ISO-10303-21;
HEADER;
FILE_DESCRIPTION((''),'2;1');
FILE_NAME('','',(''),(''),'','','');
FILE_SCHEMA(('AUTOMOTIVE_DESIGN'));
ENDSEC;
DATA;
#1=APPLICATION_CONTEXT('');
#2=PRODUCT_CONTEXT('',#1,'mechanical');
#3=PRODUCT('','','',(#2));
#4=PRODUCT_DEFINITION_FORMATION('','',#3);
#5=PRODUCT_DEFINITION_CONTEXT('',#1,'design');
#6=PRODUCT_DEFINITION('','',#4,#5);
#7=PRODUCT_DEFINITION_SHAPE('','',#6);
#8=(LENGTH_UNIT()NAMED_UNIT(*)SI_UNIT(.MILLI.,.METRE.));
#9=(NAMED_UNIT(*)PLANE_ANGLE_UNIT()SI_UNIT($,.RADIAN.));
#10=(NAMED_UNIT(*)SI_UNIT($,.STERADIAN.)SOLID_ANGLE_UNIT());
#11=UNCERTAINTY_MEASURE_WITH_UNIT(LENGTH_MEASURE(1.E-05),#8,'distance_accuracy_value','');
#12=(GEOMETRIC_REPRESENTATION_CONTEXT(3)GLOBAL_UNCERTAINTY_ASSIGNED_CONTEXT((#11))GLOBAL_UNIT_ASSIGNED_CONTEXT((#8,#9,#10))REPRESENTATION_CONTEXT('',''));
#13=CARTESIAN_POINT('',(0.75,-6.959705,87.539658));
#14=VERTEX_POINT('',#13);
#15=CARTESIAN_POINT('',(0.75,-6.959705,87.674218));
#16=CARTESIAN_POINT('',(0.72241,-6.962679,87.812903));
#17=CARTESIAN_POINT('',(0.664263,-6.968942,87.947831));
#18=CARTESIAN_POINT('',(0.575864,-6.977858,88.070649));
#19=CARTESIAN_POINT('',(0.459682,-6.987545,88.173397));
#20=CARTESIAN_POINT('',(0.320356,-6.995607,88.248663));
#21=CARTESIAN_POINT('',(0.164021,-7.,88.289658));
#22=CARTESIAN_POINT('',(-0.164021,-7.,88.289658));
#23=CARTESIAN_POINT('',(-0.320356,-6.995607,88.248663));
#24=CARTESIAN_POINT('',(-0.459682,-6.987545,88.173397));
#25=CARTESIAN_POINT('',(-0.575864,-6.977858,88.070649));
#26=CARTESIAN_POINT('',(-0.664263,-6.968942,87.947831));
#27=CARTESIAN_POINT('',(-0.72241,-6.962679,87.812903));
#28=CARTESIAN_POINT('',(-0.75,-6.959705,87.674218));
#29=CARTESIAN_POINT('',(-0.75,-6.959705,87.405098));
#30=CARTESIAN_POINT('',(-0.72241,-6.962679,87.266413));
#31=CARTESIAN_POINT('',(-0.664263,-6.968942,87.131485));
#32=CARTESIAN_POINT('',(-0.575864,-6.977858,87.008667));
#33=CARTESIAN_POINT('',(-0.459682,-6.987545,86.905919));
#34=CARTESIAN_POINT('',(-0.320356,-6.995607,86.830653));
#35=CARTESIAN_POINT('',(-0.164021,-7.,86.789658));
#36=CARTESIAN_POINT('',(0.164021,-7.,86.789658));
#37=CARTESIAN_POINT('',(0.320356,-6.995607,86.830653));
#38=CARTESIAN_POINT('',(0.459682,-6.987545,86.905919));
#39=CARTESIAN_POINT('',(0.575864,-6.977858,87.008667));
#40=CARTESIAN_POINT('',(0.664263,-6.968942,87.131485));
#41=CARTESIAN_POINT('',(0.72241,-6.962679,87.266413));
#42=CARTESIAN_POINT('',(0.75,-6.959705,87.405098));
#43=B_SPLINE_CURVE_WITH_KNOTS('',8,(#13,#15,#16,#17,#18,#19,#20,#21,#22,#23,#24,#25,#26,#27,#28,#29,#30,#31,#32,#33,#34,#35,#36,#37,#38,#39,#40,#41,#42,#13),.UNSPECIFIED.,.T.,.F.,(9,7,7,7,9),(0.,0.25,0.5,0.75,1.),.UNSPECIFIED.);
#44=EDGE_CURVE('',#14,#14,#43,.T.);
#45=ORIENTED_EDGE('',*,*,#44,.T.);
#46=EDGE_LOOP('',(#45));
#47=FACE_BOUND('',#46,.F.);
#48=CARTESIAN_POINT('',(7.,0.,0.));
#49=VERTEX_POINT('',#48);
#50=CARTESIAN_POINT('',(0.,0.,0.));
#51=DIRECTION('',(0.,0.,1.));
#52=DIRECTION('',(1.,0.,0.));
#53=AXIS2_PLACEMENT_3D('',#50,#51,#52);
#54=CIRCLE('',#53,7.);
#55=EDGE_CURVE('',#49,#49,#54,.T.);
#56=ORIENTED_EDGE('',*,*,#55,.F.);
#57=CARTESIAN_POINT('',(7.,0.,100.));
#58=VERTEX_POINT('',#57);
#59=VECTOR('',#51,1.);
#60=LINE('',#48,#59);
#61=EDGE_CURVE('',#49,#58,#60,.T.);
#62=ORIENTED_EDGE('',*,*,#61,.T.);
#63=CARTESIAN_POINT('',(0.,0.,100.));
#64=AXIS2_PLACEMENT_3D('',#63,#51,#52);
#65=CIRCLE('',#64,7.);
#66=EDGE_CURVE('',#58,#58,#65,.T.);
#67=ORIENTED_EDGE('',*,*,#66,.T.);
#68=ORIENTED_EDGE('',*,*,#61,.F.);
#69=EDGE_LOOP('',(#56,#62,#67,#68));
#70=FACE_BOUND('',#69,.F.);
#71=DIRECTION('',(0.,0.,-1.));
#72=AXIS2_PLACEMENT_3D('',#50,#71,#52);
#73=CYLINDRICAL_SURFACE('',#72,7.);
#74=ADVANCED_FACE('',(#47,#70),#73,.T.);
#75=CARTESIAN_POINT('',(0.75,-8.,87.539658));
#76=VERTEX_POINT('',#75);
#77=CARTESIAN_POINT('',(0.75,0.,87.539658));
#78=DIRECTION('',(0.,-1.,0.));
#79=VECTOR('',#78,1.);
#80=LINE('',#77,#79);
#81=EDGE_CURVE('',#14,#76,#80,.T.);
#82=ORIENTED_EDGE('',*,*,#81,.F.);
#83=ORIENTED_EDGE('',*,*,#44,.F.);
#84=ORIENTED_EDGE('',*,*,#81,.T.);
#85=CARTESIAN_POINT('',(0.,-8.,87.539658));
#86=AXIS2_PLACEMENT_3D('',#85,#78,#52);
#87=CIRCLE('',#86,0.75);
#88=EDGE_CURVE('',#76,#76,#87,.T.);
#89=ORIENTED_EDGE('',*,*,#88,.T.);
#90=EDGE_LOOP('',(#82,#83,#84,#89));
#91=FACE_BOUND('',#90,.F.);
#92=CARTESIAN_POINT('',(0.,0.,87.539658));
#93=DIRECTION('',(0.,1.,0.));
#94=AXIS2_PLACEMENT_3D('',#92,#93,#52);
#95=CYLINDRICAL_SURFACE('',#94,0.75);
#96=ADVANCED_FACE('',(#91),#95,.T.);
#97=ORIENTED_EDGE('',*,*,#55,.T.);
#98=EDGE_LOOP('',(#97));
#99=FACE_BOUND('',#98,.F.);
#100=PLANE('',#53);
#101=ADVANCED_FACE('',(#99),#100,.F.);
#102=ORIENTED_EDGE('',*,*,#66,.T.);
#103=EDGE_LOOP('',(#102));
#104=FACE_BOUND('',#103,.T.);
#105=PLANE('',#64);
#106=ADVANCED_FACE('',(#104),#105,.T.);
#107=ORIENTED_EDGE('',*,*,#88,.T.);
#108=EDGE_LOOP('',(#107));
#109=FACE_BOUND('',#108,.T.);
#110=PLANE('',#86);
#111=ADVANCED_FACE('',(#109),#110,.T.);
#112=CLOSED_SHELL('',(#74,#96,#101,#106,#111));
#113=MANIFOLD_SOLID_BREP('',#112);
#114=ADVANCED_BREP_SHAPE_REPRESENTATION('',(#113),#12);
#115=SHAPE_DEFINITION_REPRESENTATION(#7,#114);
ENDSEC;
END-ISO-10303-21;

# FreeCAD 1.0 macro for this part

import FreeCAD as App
import Part
import Sketcher
from FreeCAD import Vector
Q = App.Units.Quantity

doc = App.newDocument("Part")
body = doc.addObject("PartDesign::Body", "Body")

# Sketch on XY plane
sketch1 = body.newObject("Sketcher::SketchObject", "Sketch")
sketch1.AttachmentSupport = (doc.getObject("XY_Plane"), [""])
sketch1.MapMode = "FlatFace"
sketch1.addGeometry(Part.Circle(Vector(0, 0, 0), Vector(0, 0, 1), 7), False)
sketch1.addConstraint(Sketcher.Constraint("Coincident", 0, 3, -1, 1))
sketch1.addConstraint(Sketcher.Constraint("Diameter", 0, Q("14 mm")))
pad1 = body.newObject("PartDesign::Pad", "Pad")
pad1.Profile = sketch1
pad1.Length = 100

# Sketch on XZ plane
sketch2 = body.newObject("Sketcher::SketchObject", "Sketch001")
sketch2.AttachmentSupport = (doc.getObject("XZ_Plane"), [""])
sketch2.MapMode = "FlatFace"
sketch2.addGeometry(Part.Circle(Vector(0, 87.5, 0), Vector(0, 0, 1), 0.8), False)
sketch2.addConstraint(Sketcher.Constraint("PointOnObject", 0, 3, -2))
sketch2.addConstraint(Sketcher.Constraint("Diameter", 0, Q("1.5 mm")))
sketch2.addConstraint(Sketcher.Constraint("DistanceY", -1, 1, 0, 3, Q("87.539658 mm")))
pad2 = body.newObject("PartDesign::Pad", "Pad001")
pad2.Profile = sketch2
pad2.Length = 8

doc.recompute()
